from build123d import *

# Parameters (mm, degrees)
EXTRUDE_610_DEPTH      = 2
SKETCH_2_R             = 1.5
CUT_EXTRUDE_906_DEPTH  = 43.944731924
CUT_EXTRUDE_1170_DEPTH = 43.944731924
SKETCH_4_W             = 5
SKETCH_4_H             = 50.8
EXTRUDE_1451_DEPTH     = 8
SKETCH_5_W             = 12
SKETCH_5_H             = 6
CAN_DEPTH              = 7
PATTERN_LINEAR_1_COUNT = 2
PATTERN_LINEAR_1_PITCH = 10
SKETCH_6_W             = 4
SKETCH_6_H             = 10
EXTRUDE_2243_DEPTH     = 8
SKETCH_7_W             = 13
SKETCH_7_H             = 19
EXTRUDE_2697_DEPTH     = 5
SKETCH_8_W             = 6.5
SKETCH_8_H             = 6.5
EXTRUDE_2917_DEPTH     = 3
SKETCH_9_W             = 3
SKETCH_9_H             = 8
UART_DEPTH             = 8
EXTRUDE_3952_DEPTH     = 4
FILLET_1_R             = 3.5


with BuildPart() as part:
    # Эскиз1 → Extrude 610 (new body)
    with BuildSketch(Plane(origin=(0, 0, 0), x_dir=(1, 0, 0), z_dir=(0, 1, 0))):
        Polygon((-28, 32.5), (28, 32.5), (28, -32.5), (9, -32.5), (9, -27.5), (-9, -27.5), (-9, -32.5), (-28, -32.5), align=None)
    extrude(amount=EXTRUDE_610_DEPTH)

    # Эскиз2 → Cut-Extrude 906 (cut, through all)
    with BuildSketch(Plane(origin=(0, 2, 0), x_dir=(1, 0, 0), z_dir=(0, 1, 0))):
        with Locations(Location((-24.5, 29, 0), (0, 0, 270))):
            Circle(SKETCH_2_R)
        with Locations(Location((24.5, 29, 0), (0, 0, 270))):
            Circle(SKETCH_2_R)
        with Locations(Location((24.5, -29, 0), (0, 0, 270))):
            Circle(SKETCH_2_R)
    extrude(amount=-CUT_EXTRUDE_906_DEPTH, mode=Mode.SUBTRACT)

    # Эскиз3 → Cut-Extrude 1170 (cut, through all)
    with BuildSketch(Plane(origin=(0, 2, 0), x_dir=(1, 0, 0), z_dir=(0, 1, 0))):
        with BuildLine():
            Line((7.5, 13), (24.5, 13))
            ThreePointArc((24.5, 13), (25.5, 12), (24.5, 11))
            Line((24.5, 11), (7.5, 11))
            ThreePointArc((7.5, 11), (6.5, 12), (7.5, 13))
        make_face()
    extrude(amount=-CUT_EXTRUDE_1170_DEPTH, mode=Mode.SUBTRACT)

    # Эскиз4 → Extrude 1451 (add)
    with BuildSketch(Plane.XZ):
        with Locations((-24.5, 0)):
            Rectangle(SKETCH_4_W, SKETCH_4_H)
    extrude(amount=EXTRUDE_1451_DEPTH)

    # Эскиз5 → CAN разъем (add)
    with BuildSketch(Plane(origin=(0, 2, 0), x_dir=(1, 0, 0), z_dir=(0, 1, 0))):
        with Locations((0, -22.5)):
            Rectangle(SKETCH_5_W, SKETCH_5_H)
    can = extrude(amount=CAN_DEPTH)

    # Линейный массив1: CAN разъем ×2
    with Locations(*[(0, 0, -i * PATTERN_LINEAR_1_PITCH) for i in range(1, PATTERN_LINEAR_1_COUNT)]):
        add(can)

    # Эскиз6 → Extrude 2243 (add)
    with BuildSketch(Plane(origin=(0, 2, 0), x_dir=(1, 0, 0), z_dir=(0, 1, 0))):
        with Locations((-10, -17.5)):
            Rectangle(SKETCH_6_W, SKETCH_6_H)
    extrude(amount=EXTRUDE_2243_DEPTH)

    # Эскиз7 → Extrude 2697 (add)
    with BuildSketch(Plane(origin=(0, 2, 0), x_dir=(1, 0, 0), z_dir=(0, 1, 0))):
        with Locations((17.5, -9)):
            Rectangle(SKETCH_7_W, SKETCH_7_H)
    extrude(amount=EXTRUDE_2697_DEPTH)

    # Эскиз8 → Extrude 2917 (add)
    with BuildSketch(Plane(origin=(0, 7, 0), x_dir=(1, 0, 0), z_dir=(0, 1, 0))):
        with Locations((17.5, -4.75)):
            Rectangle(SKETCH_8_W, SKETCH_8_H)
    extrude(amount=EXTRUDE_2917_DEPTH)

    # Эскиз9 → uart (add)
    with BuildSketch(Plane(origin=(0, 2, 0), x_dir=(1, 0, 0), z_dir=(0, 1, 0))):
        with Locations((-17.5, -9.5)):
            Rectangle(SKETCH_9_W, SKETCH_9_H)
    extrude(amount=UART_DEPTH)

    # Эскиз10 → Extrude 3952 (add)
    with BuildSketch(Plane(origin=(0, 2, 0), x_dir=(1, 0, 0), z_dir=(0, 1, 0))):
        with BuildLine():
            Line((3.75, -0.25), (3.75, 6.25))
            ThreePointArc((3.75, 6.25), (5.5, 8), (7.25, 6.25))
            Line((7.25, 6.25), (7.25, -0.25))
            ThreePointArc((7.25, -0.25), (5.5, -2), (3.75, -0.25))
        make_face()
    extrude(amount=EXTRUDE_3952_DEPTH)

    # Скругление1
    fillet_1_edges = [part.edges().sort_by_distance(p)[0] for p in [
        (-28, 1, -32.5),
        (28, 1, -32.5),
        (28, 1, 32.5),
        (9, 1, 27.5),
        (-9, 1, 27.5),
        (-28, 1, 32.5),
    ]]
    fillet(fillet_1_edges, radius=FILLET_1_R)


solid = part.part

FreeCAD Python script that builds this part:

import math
import FreeCAD as App
import Part
import Sketcher
from FreeCAD import Vector


def edges_at(feature, points):
    """Names of the edges that pass closest to the given points."""
    edges = feature.Shape.Edges
    near = lambda p: min(range(len(edges)), key=lambda i: edges[i].distToShape(Part.Vertex(*p))[0])
    return sorted({f"Edge{near(p) + 1}" for p in points})

doc = App.newDocument("Part")
body = doc.addObject("PartDesign::Body", "Body")

sketch1 = body.newObject("Sketcher::SketchObject", "Sketch")
sketch1.AttachmentSupport = (doc.getObject("XZ_Plane"), [""])
sketch1.MapMode = "FlatFace"
sketch1.addGeometry([
    Part.LineSegment(Vector(28, -32, 0), Vector(-28, -32, 0)),
    Part.LineSegment(Vector(-28, -32, 0), Vector(-28, 32, 0)),
    Part.LineSegment(Vector(-28, 32, 0), Vector(-9, 32, 0)),
    Part.LineSegment(Vector(-9, 32, 0), Vector(-9, 28, 0)),
    Part.LineSegment(Vector(-9, 28, 0), Vector(9, 28, 0)),
    Part.LineSegment(Vector(9, 28, 0), Vector(9, 32, 0)),
    Part.LineSegment(Vector(9, 32, 0), Vector(28, 32, 0)),
    Part.LineSegment(Vector(28, 32, 0), Vector(28, -32, 0)),
], False)
sketch1.addConstraint([
    Sketcher.Constraint("Coincident", 0, 2, 1, 1),
    Sketcher.Constraint("Coincident", 1, 2, 2, 1),
    Sketcher.Constraint("Coincident", 2, 2, 3, 1),
    Sketcher.Constraint("Coincident", 3, 2, 4, 1),
    Sketcher.Constraint("Coincident", 4, 2, 5, 1),
    Sketcher.Constraint("Coincident", 5, 2, 6, 1),
    Sketcher.Constraint("Coincident", 6, 2, 7, 1),
    Sketcher.Constraint("Coincident", 7, 2, 0, 1),
    Sketcher.Constraint("Horizontal", 0),
    Sketcher.Constraint("Vertical", 1),
    Sketcher.Constraint("Horizontal", 2),
    Sketcher.Constraint("Vertical", 3),
    Sketcher.Constraint("Horizontal", 4),
    Sketcher.Constraint("Vertical", 5),
    Sketcher.Constraint("Horizontal", 6),
    Sketcher.Constraint("Vertical", 7),
    Sketcher.Constraint("Symmetric", 0, 2, 6, 2, -1, 1),
    Sketcher.Constraint("Symmetric", 2, 2, 5, 2, -2),
    Sketcher.Constraint("DistanceX", 0, 2, 0, 1, 56.0),
    Sketcher.Constraint("DistanceX", 2, 1, 2, 2, 19.0),
    Sketcher.Constraint("DistanceY", 1, 1, 1, 2, 65.0),
    Sketcher.Constraint("DistanceY", 3, 2, 3, 1, 5.0),
])
pad1 = body.newObject("PartDesign::Pad", "Pad")
pad1.Profile = sketch1
pad1.Length = 2
pad1.Reversed = True

sketch2 = body.newObject("Sketcher::SketchObject", "Sketch001")
sketch2.AttachmentSupport = (doc.getObject("XZ_Plane"), [""])
sketch2.MapMode = "FlatFace"
sketch2.AttachmentOffset = App.Placement(Vector(0, 0, -2), App.Rotation())
sketch2.addGeometry([
    Part.Circle(Vector(-24.5, -29, 0), Vector(0, 0, 1), 1.5),
    Part.Circle(Vector(24.5, -29, 0), Vector(0, 0, 1), 1.5),
    Part.Circle(Vector(24.5, 29, 0), Vector(0, 0, 1), 1.5),
], False)
sketch2.addConstraint([
    Sketcher.Constraint("Equal", 0, 1),
    Sketcher.Constraint("Equal", 1, 2),
    Sketcher.Constraint("Symmetric", 0, 3, 2, 3, -1, 1),
    Sketcher.Constraint("Symmetric", 0, 3, 1, 3, -2),
    Sketcher.Constraint("Diameter", 0, 3.0),
    Sketcher.Constraint("DistanceY", 0, 3, -1, 1, 29.0),
    Sketcher.Constraint("DistanceX", 0, 3, 1, 3, 49.0),
])
pocket1 = body.newObject("PartDesign::Pocket", "Pocket")
pocket1.Profile = sketch2
pocket1.Type = "ThroughAll"
pocket1.Reversed = True

sketch3 = body.newObject("Sketcher::SketchObject", "Sketch002")
sketch3.AttachmentSupport = (doc.getObject("XZ_Plane"), [""])
sketch3.MapMode = "FlatFace"
sketch3.AttachmentOffset = App.Placement(Vector(0, 0, -2), App.Rotation())
sketch3.addGeometry([
    Part.LineSegment(Vector(24.5, -13, 0), Vector(7.5, -13, 0)),
    Part.ArcOfCircle(Part.Circle(Vector(7.5, -12, 0), Vector(0, 0, 1), 1), math.radians(90), math.radians(270)),
    Part.LineSegment(Vector(7.5, -11, 0), Vector(24.5, -11, 0)),
    Part.ArcOfCircle(Part.Circle(Vector(24.5, -12, 0), Vector(0, 0, 1), 1), math.radians(-90), math.radians(90)),
], False)
sketch3.addConstraint([
    Sketcher.Constraint("Tangent", 0, 2, 1, 2),
    Sketcher.Constraint("Tangent", 1, 1, 2, 1),
    Sketcher.Constraint("Tangent", 2, 2, 3, 2),
    Sketcher.Constraint("Tangent", 3, 1, 0, 1),
    Sketcher.Constraint("Horizontal", 0),
    Sketcher.Constraint("Horizontal", 2),
    Sketcher.Constraint("Radius", 1, 1.0),
    Sketcher.Constraint("DistanceX", 0, 2, 0, 1, 17.0),
    Sketcher.Constraint("DistanceY", 1, 3, -1, 1, 12.0),
    Sketcher.Constraint("DistanceX", -1, 1, 1, 3, 7.5),
])
pocket2 = body.newObject("PartDesign::Pocket", "Pocket001")
pocket2.Profile = sketch3
pocket2.Type = "ThroughAll"
pocket2.Reversed = True

sketch4 = body.newObject("Sketcher::SketchObject", "Sketch003")
sketch4.AttachmentSupport = (doc.getObject("XZ_Plane"), [""])
sketch4.MapMode = "FlatFace"
sketch4.addGeometry([
    Part.LineSegment(Vector(-27, 25, 0), Vector(-27, -25, 0)),
    Part.LineSegment(Vector(-27, -25, 0), Vector(-22, -25, 0)),
    Part.LineSegment(Vector(-22, -25, 0), Vector(-22, 25, 0)),
    Part.LineSegment(Vector(-22, 25, 0), Vector(-27, 25, 0)),
], False)
sketch4.addConstraint([
    Sketcher.Constraint("Coincident", 0, 2, 1, 1),
    Sketcher.Constraint("Coincident", 1, 2, 2, 1),
    Sketcher.Constraint("Coincident", 2, 2, 3, 1),
    Sketcher.Constraint("Coincident", 3, 2, 0, 1),
    Sketcher.Constraint("Vertical", 0),
    Sketcher.Constraint("Horizontal", 1),
    Sketcher.Constraint("Vertical", 2),
    Sketcher.Constraint("Horizontal", 3),
    Sketcher.Constraint("DistanceX", 1, 1, 1, 2, 5.0),
    Sketcher.Constraint("DistanceY", 0, 2, 0, 1, 50.8),
    Sketcher.Constraint("DistanceX", 0, 2, -1, 1, 27.0),
    Sketcher.Constraint("DistanceY", 0, 2, -1, 1, 25.4),
])
pad2 = body.newObject("PartDesign::Pad", "Pad001")
pad2.Profile = sketch4
pad2.Length = 8

sketch5 = body.newObject("Sketcher::SketchObject", "Sketch004")
sketch5.AttachmentSupport = (doc.getObject("XZ_Plane"), [""])
sketch5.MapMode = "FlatFace"
sketch5.AttachmentOffset = App.Placement(Vector(0, 0, -2), App.Rotation())
sketch5.addGeometry([
    Part.LineSegment(Vector(-6, 20, 0), Vector(-6, 26, 0)),
    Part.LineSegment(Vector(-6, 26, 0), Vector(6, 26, 0)),
    Part.LineSegment(Vector(6, 26, 0), Vector(6, 20, 0)),
    Part.LineSegment(Vector(6, 20, 0), Vector(-6, 20, 0)),
], False)
sketch5.addConstraint([
    Sketcher.Constraint("Coincident", 0, 2, 1, 1),
    Sketcher.Constraint("Coincident", 1, 2, 2, 1),
    Sketcher.Constraint("Coincident", 2, 2, 3, 1),
    Sketcher.Constraint("Coincident", 3, 2, 0, 1),
    Sketcher.Constraint("Vertical", 0),
    Sketcher.Constraint("Horizontal", 1),
    Sketcher.Constraint("Vertical", 2),
    Sketcher.Constraint("Horizontal", 3),
    Sketcher.Constraint("DistanceX", 1, 1, 1, 2, 12.0),
    Sketcher.Constraint("DistanceY", 0, 1, 0, 2, 6.0),
    Sketcher.Constraint("DistanceX", 0, 2, -1, 1, 6.0),
    Sketcher.Constraint("DistanceY", -1, 1, 0, 2, 25.5),
])
pad3 = body.newObject("PartDesign::Pad", "Pad002")
pad3.Profile = sketch5
pad3.Length = 7
pad3.Reversed = True
doc.recompute()

linearpattern = body.newObject("PartDesign::LinearPattern", "LinearPattern")
linearpattern.Originals = [pad3]
linearpattern.Direction = (doc.getObject("Z_Axis"), [""])
linearpattern.Mode = "offset"
linearpattern.Offset = 10
linearpattern.Occurrences = 2
linearpattern.Reversed = True
body.Tip = linearpattern

sketch6 = body.newObject("Sketcher::SketchObject", "Sketch005")
sketch6.AttachmentSupport = (doc.getObject("XZ_Plane"), [""])
sketch6.MapMode = "FlatFace"
sketch6.AttachmentOffset = App.Placement(Vector(0, 0, -2), App.Rotation())
sketch6.addGeometry([
    Part.LineSegment(Vector(-12, 12.5, 0), Vector(-12, 22.5, 0)),
    Part.LineSegment(Vector(-12, 22.5, 0), Vector(-8, 22.5, 0)),
    Part.LineSegment(Vector(-8, 22.5, 0), Vector(-8, 12.5, 0)),
    Part.LineSegment(Vector(-8, 12.5, 0), Vector(-12, 12.5, 0)),
], False)
sketch6.addConstraint([
    Sketcher.Constraint("Coincident", 0, 2, 1, 1),
    Sketcher.Constraint("Coincident", 1, 2, 2, 1),
    Sketcher.Constraint("Coincident", 2, 2, 3, 1),
    Sketcher.Constraint("Coincident", 3, 2, 0, 1),
    Sketcher.Constraint("Vertical", 0),
    Sketcher.Constraint("Horizontal", 1),
    Sketcher.Constraint("Vertical", 2),
    Sketcher.Constraint("Horizontal", 3),
    Sketcher.Constraint("DistanceX", 1, 1, 1, 2, 4.0),
    Sketcher.Constraint("DistanceY", 0, 1, 0, 2, 10.0),
    Sketcher.Constraint("DistanceX", 0, 2, -1, 1, 12.0),
    Sketcher.Constraint("DistanceY", -1, 1, 0, 2, 22.5),
])
pad4 = body.newObject("PartDesign::Pad", "Pad003")
pad4.Profile = sketch6
pad4.Length = 8
pad4.Reversed = True

sketch7 = body.newObject("Sketcher::SketchObject", "Sketch006")
sketch7.AttachmentSupport = (doc.getObject("XZ_Plane"), [""])
sketch7.MapMode = "FlatFace"
sketch7.AttachmentOffset = App.Placement(Vector(0, 0, -2), App.Rotation())
sketch7.addGeometry([
    Part.LineSegment(Vector(11, 0, 0), Vector(11, 18, 0)),
    Part.LineSegment(Vector(11, 18, 0), Vector(24, 18, 0)),
    Part.LineSegment(Vector(24, 18, 0), Vector(24, 0, 0)),
    Part.LineSegment(Vector(24, 0, 0), Vector(11, 0, 0)),
], False)
sketch7.addConstraint([
    Sketcher.Constraint("Coincident", 0, 2, 1, 1),
    Sketcher.Constraint("Coincident", 1, 2, 2, 1),
    Sketcher.Constraint("Coincident", 2, 2, 3, 1),
    Sketcher.Constraint("Coincident", 3, 2, 0, 1),
    Sketcher.Constraint("Vertical", 0),
    Sketcher.Constraint("Horizontal", 1),
    Sketcher.Constraint("Vertical", 2),
    Sketcher.Constraint("Horizontal", 3),
    Sketcher.Constraint("DistanceX", 1, 1, 1, 2, 13.0),
    Sketcher.Constraint("DistanceY", 0, 1, 0, 2, 19.0),
    Sketcher.Constraint("DistanceX", -1, 1, 0, 2, 11.0),
    Sketcher.Constraint("DistanceY", -1, 1, 0, 2, 18.5),
])
pad5 = body.newObject("PartDesign::Pad", "Pad004")
pad5.Profile = sketch7
pad5.Length = 5
pad5.Reversed = True

sketch8 = body.newObject("Sketcher::SketchObject", "Sketch007")
sketch8.AttachmentSupport = (doc.getObject("XZ_Plane"), [""])
sketch8.MapMode = "FlatFace"
sketch8.AttachmentOffset = App.Placement(Vector(0, 0, -7), App.Rotation())
sketch8.addGeometry([
    Part.LineSegment(Vector(14, 2, 0), Vector(14, 8, 0)),
    Part.LineSegment(Vector(14, 8, 0), Vector(21, 8, 0)),
    Part.LineSegment(Vector(21, 8, 0), Vector(21, 2, 0)),
    Part.LineSegment(Vector(21, 2, 0), Vector(14, 2, 0)),
], False)
sketch8.addConstraint([
    Sketcher.Constraint("Coincident", 0, 2, 1, 1),
    Sketcher.Constraint("Coincident", 1, 2, 2, 1),
    Sketcher.Constraint("Coincident", 2, 2, 3, 1),
    Sketcher.Constraint("Coincident", 3, 2, 0, 1),
    Sketcher.Constraint("Vertical", 0),
    Sketcher.Constraint("Horizontal", 1),
    Sketcher.Constraint("Vertical", 2),
    Sketcher.Constraint("Horizontal", 3),
    Sketcher.Constraint("Equal", 3, 0),
    Sketcher.Constraint("DistanceX", 1, 1, 1, 2, 6.5),
    Sketcher.Constraint("DistanceY", -1, 1, 0, 2, 8.0),
    Sketcher.Constraint("DistanceX", -1, 1, 0, 2, 14.25),
])
pad6 = body.newObject("PartDesign::Pad", "Pad005")
pad6.Profile = sketch8
pad6.Length = 3
pad6.Reversed = True

sketch9 = body.newObject("Sketcher::SketchObject", "Sketch008")
sketch9.AttachmentSupport = (doc.getObject("XZ_Plane"), [""])
sketch9.MapMode = "FlatFace"
sketch9.AttachmentOffset = App.Placement(Vector(0, 0, -2), App.Rotation())
sketch9.addGeometry([
    Part.LineSegment(Vector(-19, 5.5, 0), Vector(-19, 13.5, 0)),
    Part.LineSegment(Vector(-19, 13.5, 0), Vector(-16, 13.5, 0)),
    Part.LineSegment(Vector(-16, 13.5, 0), Vector(-16, 5.5, 0)),
    Part.LineSegment(Vector(-16, 5.5, 0), Vector(-19, 5.5, 0)),
], False)
sketch9.addConstraint([
    Sketcher.Constraint("Coincident", 0, 2, 1, 1),
    Sketcher.Constraint("Coincident", 1, 2, 2, 1),
    Sketcher.Constraint("Coincident", 2, 2, 3, 1),
    Sketcher.Constraint("Coincident", 3, 2, 0, 1),
    Sketcher.Constraint("Vertical", 0),
    Sketcher.Constraint("Horizontal", 1),
    Sketcher.Constraint("Vertical", 2),
    Sketcher.Constraint("Horizontal", 3),
    Sketcher.Constraint("DistanceX", 1, 1, 1, 2, 3.0),
    Sketcher.Constraint("DistanceY", 0, 1, 0, 2, 8.0),
    Sketcher.Constraint("DistanceX", 0, 2, -1, 1, 19.0),
    Sketcher.Constraint("DistanceY", -1, 1, 0, 2, 13.5),
])
pad7 = body.newObject("PartDesign::Pad", "Pad006")
pad7.Profile = sketch9
pad7.Length = 8
pad7.Reversed = True

sketch10 = body.newObject("Sketcher::SketchObject", "Sketch009")
sketch10.AttachmentSupport = (doc.getObject("XZ_Plane"), [""])
sketch10.MapMode = "FlatFace"
sketch10.AttachmentOffset = App.Placement(Vector(0, 0, -2), App.Rotation())
sketch10.addGeometry([
    Part.LineSegment(Vector(3.8, -6.2, 0), Vector(3.8, 0.2, 0)),
    Part.ArcOfCircle(Part.Circle(Vector(5.5, 0.2, 0), Vector(0, 0, 1), 1.8), math.radians(0), math.radians(180)),
    Part.LineSegment(Vector(7.2, 0.2, 0), Vector(7.2, -6.2, 0)),
    Part.ArcOfCircle(Part.Circle(Vector(5.5, -6.2, 0), Vector(0, 0, 1), 1.8), math.radians(180), math.radians(360)),
], False)
sketch10.addConstraint([
    Sketcher.Constraint("Tangent", 0, 2, 1, 2),
    Sketcher.Constraint("Tangent", 1, 1, 2, 1),
    Sketcher.Constraint("Tangent", 2, 2, 3, 2),
    Sketcher.Constraint("Tangent", 3, 1, 0, 1),
    Sketcher.Constraint("Vertical", 0),
    Sketcher.Constraint("Vertical", 2),
    Sketcher.Constraint("Radius", 1, 1.75),
    Sketcher.Constraint("DistanceY", 0, 1, 0, 2, 6.5),
    Sketcher.Constraint("DistanceX", -1, 1, 1, 3, 5.5),
    Sketcher.Constraint("DistanceY", -1, 1, 1, 3, 0.25),
])
pad8 = body.newObject("PartDesign::Pad", "Pad007")
pad8.Profile = sketch10
pad8.Length = 4
pad8.Reversed = True
doc.recompute()

fillet = body.newObject("PartDesign::Fillet", "Fillet")
fillet.Base = (pad8, edges_at(pad8, [
    (-28, 1, -32.5),
    (28, 1, -32.5),
    (28, 1, 32.5),
    (9, 1, 27.5),
    (-9, 1, 27.5),
    (-28, 1, 32.5),
]))
fillet.Radius = 3.5

doc.recompute()
